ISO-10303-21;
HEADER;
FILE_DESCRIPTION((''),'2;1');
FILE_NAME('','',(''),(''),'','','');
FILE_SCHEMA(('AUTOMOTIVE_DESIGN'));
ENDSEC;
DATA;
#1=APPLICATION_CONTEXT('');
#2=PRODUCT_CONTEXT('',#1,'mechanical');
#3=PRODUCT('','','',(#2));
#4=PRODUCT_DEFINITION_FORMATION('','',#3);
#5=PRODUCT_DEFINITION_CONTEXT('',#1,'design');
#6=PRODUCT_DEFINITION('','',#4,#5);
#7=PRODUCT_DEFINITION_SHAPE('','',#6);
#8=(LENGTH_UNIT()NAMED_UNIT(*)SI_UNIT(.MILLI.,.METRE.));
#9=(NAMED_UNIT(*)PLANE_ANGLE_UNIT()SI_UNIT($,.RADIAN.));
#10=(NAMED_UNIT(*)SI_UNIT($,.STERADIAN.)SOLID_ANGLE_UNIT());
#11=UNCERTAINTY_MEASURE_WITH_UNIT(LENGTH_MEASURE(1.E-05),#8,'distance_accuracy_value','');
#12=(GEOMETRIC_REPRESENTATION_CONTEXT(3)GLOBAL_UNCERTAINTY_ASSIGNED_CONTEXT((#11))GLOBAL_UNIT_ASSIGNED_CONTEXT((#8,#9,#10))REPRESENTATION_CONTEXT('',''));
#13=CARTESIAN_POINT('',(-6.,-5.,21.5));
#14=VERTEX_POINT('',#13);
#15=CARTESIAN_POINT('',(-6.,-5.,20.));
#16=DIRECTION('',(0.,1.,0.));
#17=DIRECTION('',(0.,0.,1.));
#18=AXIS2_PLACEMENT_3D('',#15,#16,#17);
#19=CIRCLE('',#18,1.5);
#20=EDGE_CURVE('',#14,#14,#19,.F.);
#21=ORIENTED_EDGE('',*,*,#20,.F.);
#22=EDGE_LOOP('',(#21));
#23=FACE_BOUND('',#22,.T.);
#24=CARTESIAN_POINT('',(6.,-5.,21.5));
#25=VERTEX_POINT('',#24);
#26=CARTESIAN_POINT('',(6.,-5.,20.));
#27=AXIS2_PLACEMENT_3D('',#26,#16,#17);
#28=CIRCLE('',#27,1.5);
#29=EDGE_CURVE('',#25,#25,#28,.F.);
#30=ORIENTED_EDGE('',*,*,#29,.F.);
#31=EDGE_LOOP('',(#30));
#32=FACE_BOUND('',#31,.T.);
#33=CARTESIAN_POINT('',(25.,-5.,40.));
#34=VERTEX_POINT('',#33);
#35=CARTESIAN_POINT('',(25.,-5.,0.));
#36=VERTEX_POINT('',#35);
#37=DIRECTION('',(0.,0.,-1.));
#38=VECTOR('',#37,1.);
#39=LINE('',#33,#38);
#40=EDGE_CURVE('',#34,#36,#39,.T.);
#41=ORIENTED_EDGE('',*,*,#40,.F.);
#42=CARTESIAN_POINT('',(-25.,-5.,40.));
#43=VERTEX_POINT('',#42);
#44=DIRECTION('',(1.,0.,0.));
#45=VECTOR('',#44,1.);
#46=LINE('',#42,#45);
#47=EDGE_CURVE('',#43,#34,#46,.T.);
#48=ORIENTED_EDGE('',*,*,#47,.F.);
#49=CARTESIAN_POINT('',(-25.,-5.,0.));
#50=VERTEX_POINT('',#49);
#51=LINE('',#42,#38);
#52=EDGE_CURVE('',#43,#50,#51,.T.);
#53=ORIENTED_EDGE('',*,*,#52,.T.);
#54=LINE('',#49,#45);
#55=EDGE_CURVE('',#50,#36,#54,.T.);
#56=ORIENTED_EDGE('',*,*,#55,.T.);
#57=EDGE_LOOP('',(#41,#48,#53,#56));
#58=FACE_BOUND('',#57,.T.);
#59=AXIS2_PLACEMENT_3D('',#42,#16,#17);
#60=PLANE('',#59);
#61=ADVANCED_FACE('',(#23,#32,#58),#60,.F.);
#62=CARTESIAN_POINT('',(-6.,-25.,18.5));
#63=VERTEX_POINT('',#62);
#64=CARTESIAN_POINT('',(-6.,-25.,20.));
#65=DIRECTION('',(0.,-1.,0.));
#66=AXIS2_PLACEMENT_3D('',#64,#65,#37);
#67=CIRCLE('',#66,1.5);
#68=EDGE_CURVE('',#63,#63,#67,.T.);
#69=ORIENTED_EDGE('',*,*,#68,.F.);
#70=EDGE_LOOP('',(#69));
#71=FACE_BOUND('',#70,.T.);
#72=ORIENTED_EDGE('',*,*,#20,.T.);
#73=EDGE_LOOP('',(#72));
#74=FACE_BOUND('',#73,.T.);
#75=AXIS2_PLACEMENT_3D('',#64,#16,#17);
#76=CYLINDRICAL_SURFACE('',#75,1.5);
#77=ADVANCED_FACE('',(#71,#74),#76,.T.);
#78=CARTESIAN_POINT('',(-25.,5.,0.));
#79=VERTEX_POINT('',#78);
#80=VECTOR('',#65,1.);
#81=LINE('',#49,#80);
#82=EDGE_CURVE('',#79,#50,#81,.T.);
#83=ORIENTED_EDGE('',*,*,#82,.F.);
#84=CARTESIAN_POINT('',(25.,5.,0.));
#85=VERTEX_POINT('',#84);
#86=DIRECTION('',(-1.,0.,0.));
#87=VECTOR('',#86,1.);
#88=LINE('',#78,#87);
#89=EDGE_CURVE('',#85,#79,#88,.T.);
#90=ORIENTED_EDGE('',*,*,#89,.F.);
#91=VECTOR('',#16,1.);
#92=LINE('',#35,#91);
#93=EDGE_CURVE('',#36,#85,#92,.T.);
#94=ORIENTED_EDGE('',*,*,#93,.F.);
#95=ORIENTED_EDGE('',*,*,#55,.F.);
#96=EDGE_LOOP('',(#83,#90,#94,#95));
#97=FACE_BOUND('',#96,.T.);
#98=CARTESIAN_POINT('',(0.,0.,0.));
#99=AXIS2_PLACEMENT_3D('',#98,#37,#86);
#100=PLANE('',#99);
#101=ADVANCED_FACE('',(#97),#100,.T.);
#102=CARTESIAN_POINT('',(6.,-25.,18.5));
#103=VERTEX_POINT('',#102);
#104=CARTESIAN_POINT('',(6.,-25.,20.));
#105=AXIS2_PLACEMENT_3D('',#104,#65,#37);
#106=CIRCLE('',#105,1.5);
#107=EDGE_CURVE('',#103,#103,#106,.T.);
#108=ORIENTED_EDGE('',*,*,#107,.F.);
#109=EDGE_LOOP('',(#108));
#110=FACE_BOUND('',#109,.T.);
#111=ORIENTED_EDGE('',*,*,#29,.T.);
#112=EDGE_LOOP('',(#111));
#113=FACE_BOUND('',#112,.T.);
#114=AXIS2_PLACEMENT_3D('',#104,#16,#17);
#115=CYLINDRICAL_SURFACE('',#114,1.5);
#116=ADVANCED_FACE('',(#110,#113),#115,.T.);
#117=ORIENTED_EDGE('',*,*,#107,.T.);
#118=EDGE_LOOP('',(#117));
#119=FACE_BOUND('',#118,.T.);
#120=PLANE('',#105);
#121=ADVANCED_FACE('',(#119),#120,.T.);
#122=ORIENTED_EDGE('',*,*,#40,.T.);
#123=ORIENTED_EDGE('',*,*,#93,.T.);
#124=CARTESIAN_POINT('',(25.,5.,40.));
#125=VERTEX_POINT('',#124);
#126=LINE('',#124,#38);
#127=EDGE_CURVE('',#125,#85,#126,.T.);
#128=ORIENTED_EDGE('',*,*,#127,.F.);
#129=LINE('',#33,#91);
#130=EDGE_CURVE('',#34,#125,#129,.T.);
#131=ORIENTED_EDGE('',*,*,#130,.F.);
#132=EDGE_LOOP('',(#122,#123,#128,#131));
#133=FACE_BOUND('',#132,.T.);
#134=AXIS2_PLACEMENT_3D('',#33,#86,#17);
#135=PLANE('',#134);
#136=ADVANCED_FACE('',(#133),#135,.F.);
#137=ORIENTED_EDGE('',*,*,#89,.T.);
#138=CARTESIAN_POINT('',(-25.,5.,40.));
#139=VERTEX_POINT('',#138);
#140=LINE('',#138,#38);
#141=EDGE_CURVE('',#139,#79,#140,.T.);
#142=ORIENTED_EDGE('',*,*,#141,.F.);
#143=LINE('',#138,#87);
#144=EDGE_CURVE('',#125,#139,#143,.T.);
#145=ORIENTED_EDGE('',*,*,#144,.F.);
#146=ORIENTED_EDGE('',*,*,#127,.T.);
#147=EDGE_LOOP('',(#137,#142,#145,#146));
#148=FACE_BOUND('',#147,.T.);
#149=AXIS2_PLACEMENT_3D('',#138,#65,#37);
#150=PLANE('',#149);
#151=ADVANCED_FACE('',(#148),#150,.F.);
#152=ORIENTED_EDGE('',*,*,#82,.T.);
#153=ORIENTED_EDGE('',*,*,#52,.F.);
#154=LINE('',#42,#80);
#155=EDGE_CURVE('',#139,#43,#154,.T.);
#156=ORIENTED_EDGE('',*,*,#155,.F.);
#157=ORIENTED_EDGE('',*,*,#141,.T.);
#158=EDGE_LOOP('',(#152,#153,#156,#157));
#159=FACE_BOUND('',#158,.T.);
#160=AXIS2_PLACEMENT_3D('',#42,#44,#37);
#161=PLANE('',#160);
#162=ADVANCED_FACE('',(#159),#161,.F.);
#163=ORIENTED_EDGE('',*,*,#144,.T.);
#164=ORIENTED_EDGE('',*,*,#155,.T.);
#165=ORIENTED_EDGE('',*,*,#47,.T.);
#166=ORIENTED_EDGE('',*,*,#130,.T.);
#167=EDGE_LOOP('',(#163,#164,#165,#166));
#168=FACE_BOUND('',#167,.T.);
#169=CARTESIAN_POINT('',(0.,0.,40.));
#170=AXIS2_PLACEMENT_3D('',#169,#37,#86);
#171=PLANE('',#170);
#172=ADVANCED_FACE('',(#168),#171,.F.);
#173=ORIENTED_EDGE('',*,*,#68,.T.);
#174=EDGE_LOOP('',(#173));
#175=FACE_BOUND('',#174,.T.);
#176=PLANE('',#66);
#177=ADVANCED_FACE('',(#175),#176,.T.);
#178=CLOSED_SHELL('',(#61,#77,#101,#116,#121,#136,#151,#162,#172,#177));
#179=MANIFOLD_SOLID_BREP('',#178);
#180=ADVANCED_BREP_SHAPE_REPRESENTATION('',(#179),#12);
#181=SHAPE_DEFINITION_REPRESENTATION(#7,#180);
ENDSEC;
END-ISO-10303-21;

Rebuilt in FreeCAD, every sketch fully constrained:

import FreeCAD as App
import Part
import Sketcher

doc = App.newDocument("Part")
body = doc.addObject("PartDesign::Body", "Body")

sketch1 = body.newObject("Sketcher::SketchObject", "Sketch")
sketch1.AttachmentSupport = (doc.getObject("XY_Plane"), [""])
sketch1.MapMode = "FlatFace"
sketch1.addGeometry([
    Part.LineSegment(App.Vector(-25, 5, 0), App.Vector(-25, -5, 0)),
    Part.LineSegment(App.Vector(-25, -5, 0), App.Vector(25, -5, 0)),
    Part.LineSegment(App.Vector(25, -5, 0), App.Vector(25, 5, 0)),
    Part.LineSegment(App.Vector(25, 5, 0), App.Vector(-25, 5, 0)),
], False)
sketch1.addConstraint([
    Sketcher.Constraint("Coincident", 0, 2, 1, 1),
    Sketcher.Constraint("Coincident", 1, 2, 2, 1),
    Sketcher.Constraint("Coincident", 2, 2, 3, 1),
    Sketcher.Constraint("Coincident", 3, 2, 0, 1),
    Sketcher.Constraint("Vertical", 0),
    Sketcher.Constraint("Horizontal", 1),
    Sketcher.Constraint("Vertical", 2),
    Sketcher.Constraint("Horizontal", 3),
    Sketcher.Constraint("Symmetric", 0, 2, 2, 2, -1, 1),
    Sketcher.Constraint("DistanceX", 1, 1, 1, 2, 50.0),
    Sketcher.Constraint("DistanceY", 0, 2, 0, 1, 10.0),
])
pad1 = body.newObject("PartDesign::Pad", "Pad")
pad1.Profile = sketch1
pad1.Length = 40

sketch2 = body.newObject("Sketcher::SketchObject", "Sketch001")
sketch2.AttachmentSupport = (doc.getObject("XZ_Plane"), [""])
sketch2.MapMode = "FlatFace"
sketch2.AttachmentOffset = App.Placement(App.Vector(0, 0, 5), App.Rotation())
sketch2.addGeometry([
    Part.Circle(App.Vector(-6, 20, 0), App.Vector(0, 0, 1), 1.5),
    Part.Circle(App.Vector(6, 20, 0), App.Vector(0, 0, 1), 1.5),
], False)
sketch2.addConstraint([
    Sketcher.Constraint("Equal", 0, 1),
    Sketcher.Constraint("Symmetric", 0, 3, 1, 3, -2),
    Sketcher.Constraint("Diameter", 0, 3.0),
    Sketcher.Constraint("DistanceX", 0, 3, -1, 1, 6.0),
    Sketcher.Constraint("DistanceY", -1, 1, 0, 3, 20.0),
])
pad2 = body.newObject("PartDesign::Pad", "Pad001")
pad2.Profile = sketch2
pad2.Length = 20

doc.recompute()
